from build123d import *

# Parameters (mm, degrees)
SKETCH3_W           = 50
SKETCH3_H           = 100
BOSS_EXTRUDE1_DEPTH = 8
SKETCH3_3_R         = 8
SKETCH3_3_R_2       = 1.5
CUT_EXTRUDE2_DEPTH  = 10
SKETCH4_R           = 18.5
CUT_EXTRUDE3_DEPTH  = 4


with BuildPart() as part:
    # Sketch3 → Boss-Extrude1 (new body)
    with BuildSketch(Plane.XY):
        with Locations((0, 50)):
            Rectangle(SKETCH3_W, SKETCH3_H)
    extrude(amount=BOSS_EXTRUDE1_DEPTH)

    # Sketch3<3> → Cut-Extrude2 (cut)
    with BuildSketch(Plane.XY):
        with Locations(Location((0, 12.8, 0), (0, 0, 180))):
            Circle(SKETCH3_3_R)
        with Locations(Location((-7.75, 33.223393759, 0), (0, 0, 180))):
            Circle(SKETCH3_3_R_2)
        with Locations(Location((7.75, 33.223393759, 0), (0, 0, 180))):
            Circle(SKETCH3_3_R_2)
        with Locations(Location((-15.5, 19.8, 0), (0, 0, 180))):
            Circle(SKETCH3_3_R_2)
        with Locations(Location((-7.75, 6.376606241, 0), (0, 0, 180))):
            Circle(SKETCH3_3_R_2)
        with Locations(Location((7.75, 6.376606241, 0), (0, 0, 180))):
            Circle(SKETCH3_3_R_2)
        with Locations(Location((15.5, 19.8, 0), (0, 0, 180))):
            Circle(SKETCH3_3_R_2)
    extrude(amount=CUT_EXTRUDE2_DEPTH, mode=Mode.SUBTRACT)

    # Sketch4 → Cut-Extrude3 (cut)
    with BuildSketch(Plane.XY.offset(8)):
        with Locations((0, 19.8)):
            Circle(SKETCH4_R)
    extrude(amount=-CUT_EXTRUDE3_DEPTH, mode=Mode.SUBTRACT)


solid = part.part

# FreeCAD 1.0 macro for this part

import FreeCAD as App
import Part
import Sketcher

V = App.Vector
Q = App.Units.Quantity


def add_polygon(sketch, points):
    """Adds a closed chain of lines whose ends are joined by coincident constraints."""
    first, n = sketch.GeometryCount, len(points)
    for a, b in zip(points, points[1:] + points[:1]):
        sketch.addGeometry(Part.LineSegment(App.Vector(*a, 0), App.Vector(*b, 0)), False)
    for i in range(n):
        sketch.addConstraint(Sketcher.Constraint("Coincident", first + i, 2, first + (i + 1) % n, 1))

doc = App.newDocument("Part")
body = doc.addObject("PartDesign::Body", "Body")

# Sketch on XY plane
sketch1 = body.newObject("Sketcher::SketchObject", "Sketch")
sketch1.AttachmentSupport = (doc.getObject("XY_Plane"), [""])
sketch1.MapMode = "FlatFace"
add_polygon(sketch1, [(-25, 100), (-25, 0), (25, 0), (25, 100)])  # lines 0-3
sketch1.addConstraint([
    Sketcher.Constraint("Vertical", 0),
    Sketcher.Constraint("Horizontal", 1),
    Sketcher.Constraint("Vertical", 2),
    Sketcher.Constraint("Horizontal", 3),
    Sketcher.Constraint("Symmetric", 0, 2, 1, 2, -1, 1),
    Sketcher.Constraint("DistanceX", 1, 1, 1, 2, Q("50 mm")),
    Sketcher.Constraint("DistanceY", 0, 2, 0, 1, Q("100 mm")),
])
pad1 = body.newObject("PartDesign::Pad", "Pad")
pad1.Profile = sketch1
pad1.Length = 8

# Sketch on XY plane
sketch2 = body.newObject("Sketcher::SketchObject", "Sketch001")
sketch2.AttachmentSupport = (doc.getObject("XY_Plane"), [""])
sketch2.MapMode = "FlatFace"
sketch2.addGeometry([
    Part.Circle(V(0, 12.8, 0), V(0, 0, 1), 8),  # 0
    Part.Circle(V(-7.8, 33.2, 0), V(0, 0, 1), 1.5),  # 1
    Part.Circle(V(7.8, 33.2, 0), V(0, 0, 1), 1.5),  # 2
    Part.Circle(V(-15.5, 19.8, 0), V(0, 0, 1), 1.5),  # 3
    Part.Circle(V(-7.8, 6.4, 0), V(0, 0, 1), 1.5),  # 4
    Part.Circle(V(7.8, 6.4, 0), V(0, 0, 1), 1.5),  # 5
    Part.Circle(V(15.5, 19.8, 0), V(0, 0, 1), 1.5),  # 6
], False)
sketch2.addConstraint([
    Sketcher.Constraint("Equal", 1, 2),
    Sketcher.Constraint("Equal", 2, 3),
    Sketcher.Constraint("Equal", 3, 4),
    Sketcher.Constraint("Equal", 4, 5),
    Sketcher.Constraint("Equal", 5, 6),
    Sketcher.Constraint("Symmetric", 1, 3, 2, 3, -2),
    Sketcher.Constraint("Symmetric", 4, 3, 5, 3, -2),
    Sketcher.Constraint("Symmetric", 3, 3, 6, 3, -2),
    Sketcher.Constraint("PointOnObject", 0, 3, -2),
    Sketcher.Constraint("Vertical", 1, 3, 4, 3),
    Sketcher.Constraint("Diameter", 0, Q("16 mm")),
    Sketcher.Constraint("Diameter", 1, Q("3 mm")),
    Sketcher.Constraint("DistanceY", 0, 3, 3, 3, Q("7 mm")),
    Sketcher.Constraint("DistanceY", -1, 1, 0, 3, Q("12.8 mm")),
    Sketcher.Constraint("DistanceX", 3, 3, -1, 1, Q("15.5 mm")),
    Sketcher.Constraint("DistanceX", 1, 3, 2, 3, Q("15.5 mm")),
    Sketcher.Constraint("DistanceY", -1, 1, 1, 3, Q("33.223394 mm")),
    Sketcher.Constraint("DistanceY", -1, 1, 4, 3, Q("6.376606 mm")),
])
pocket1 = body.newObject("PartDesign::Pocket", "Pocket")
pocket1.Profile = sketch2
pocket1.Length = 10
pocket1.Reversed = True

# Sketch on XY plane
sketch3 = body.newObject("Sketcher::SketchObject", "Sketch002")
sketch3.AttachmentSupport = (doc.getObject("XY_Plane"), [""])
sketch3.MapMode = "FlatFace"
sketch3.AttachmentOffset = App.Placement(V(0, 0, 8), App.Rotation())
sketch3.addGeometry(Part.Circle(V(0, 20, 0), V(0, 0, 1), 18), False)
sketch3.addConstraint([
    Sketcher.Constraint("PointOnObject", 0, 3, -2),
    Sketcher.Constraint("Diameter", 0, Q("37 mm")),
    Sketcher.Constraint("DistanceY", -1, 1, 0, 3, Q("19.8 mm")),
])
pocket2 = body.newObject("PartDesign::Pocket", "Pocket001")
pocket2.Profile = sketch3
pocket2.Length = 4

doc.recompute()
